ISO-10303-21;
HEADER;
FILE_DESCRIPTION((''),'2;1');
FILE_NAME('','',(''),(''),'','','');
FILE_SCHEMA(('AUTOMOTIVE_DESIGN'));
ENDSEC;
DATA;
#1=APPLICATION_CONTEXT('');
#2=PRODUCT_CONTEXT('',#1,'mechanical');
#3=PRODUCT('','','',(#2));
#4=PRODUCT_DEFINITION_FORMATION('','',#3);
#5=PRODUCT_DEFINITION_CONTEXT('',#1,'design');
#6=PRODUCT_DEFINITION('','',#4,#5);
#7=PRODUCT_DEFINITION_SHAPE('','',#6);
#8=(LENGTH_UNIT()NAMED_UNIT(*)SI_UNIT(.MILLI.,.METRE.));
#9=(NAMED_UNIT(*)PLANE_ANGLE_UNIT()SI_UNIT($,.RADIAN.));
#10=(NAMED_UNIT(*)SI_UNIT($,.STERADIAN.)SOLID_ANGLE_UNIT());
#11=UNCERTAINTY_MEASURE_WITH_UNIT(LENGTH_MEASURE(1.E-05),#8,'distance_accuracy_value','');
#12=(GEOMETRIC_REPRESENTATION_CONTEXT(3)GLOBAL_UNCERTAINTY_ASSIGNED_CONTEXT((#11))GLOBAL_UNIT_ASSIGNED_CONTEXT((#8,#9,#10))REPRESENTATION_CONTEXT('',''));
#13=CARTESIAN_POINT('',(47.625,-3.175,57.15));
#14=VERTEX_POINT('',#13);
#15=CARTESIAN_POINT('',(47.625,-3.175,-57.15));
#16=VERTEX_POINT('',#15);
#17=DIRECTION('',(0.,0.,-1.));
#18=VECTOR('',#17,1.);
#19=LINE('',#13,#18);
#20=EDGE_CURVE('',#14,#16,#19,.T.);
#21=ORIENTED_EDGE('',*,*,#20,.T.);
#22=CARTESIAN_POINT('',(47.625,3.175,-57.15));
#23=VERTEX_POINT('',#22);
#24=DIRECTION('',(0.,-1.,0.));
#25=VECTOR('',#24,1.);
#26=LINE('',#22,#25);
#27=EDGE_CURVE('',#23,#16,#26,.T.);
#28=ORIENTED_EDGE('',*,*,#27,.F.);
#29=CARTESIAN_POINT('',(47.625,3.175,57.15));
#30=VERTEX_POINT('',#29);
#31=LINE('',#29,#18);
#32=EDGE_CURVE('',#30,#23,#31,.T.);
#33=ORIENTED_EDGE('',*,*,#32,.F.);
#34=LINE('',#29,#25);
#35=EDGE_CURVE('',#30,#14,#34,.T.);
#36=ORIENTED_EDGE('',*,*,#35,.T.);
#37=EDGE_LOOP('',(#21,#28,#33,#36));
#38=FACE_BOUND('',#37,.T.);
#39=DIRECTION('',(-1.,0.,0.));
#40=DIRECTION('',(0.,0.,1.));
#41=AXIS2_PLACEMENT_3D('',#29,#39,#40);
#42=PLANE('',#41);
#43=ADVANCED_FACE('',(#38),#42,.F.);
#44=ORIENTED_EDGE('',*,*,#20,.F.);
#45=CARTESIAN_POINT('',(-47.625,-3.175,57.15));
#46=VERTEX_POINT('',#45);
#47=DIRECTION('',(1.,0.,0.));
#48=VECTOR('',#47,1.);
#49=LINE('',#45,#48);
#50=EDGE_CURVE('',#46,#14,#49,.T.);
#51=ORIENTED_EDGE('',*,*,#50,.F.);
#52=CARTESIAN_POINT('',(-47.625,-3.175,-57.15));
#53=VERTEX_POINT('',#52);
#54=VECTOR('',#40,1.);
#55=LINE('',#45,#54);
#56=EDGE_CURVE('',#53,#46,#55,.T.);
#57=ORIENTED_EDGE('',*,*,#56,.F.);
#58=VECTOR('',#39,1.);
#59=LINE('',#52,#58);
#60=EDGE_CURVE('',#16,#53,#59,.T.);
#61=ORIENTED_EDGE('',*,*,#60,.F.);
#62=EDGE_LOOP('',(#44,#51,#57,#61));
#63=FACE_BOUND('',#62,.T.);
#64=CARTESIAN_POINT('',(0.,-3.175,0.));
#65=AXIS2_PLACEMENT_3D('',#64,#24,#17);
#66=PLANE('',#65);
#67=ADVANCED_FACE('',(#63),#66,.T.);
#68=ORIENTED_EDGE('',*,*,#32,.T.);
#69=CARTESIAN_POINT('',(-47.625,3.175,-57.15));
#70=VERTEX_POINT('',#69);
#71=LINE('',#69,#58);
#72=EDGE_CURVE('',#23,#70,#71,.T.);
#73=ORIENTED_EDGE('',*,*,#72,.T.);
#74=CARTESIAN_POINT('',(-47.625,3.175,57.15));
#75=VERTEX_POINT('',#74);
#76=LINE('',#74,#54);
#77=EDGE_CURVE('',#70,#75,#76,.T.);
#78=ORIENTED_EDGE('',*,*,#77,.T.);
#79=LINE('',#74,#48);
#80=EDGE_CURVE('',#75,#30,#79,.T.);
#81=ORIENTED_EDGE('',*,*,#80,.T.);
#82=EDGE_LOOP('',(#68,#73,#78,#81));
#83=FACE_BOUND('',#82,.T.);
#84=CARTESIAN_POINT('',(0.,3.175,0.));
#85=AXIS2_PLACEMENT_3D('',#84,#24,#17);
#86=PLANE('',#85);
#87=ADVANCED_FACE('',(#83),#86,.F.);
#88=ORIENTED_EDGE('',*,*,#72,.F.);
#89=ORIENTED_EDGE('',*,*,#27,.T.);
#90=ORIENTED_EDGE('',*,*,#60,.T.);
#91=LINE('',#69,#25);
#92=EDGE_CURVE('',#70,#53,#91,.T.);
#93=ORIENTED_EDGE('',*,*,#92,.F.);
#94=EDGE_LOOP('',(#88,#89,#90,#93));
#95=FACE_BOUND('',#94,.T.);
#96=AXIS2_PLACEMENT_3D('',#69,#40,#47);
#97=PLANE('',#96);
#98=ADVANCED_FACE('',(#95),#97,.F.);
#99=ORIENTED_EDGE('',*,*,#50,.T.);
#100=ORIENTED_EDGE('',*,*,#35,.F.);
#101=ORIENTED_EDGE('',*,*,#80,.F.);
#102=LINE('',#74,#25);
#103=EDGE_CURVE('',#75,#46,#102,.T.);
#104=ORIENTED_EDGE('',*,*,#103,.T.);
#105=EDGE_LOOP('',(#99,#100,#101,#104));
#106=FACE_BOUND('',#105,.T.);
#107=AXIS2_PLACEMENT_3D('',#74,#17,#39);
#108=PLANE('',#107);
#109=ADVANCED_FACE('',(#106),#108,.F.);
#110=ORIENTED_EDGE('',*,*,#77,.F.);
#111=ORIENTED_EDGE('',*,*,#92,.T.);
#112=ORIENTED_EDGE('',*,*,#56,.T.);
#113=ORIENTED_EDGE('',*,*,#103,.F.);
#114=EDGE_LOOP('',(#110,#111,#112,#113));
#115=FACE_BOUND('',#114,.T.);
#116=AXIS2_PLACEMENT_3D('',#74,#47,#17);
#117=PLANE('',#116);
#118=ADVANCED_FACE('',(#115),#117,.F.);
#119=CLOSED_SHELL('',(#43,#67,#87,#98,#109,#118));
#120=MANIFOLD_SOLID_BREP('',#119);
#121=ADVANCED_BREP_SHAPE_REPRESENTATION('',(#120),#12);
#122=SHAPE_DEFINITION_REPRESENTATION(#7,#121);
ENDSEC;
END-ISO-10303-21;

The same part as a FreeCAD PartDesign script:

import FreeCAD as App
import Part
import Sketcher
Q = App.Units.Quantity


def add_polygon(sketch, points):
    """Adds a closed chain of lines whose ends are joined by coincident constraints."""
    first, n = sketch.GeometryCount, len(points)
    for a, b in zip(points, points[1:] + points[:1]):
        sketch.addGeometry(Part.LineSegment(App.Vector(*a, 0), App.Vector(*b, 0)), False)
    for i in range(n):
        sketch.addConstraint(Sketcher.Constraint("Coincident", first + i, 2, first + (i + 1) % n, 1))

doc = App.newDocument("Part")
body = doc.addObject("PartDesign::Body", "Body")

sketch1 = body.newObject("Sketcher::SketchObject", "Sketch")
sketch1.AttachmentSupport = (doc.getObject("XZ_Plane"), [""])
sketch1.MapMode = "FlatFace"
add_polygon(sketch1, [(-48, -57), (-48, 57), (48, 57), (48, -57)])
sketch1.addConstraint([
    Sketcher.Constraint("Vertical", 0),
    Sketcher.Constraint("Horizontal", 1),
    Sketcher.Constraint("Vertical", 2),
    Sketcher.Constraint("Horizontal", 3),
    Sketcher.Constraint("Symmetric", 0, 2, 2, 2, -1, 1),
    Sketcher.Constraint("DistanceY", 0, 1, 0, 2, Q("4.5 in")),
    Sketcher.Constraint("DistanceX", 1, 1, 1, 2, Q("3.75 in")),
])
pad1 = body.newObject("PartDesign::Pad", "Pad")
pad1.Profile = sketch1
pad1.Length = Q("0.25 in")
pad1.Midplane = True

doc.recompute()
